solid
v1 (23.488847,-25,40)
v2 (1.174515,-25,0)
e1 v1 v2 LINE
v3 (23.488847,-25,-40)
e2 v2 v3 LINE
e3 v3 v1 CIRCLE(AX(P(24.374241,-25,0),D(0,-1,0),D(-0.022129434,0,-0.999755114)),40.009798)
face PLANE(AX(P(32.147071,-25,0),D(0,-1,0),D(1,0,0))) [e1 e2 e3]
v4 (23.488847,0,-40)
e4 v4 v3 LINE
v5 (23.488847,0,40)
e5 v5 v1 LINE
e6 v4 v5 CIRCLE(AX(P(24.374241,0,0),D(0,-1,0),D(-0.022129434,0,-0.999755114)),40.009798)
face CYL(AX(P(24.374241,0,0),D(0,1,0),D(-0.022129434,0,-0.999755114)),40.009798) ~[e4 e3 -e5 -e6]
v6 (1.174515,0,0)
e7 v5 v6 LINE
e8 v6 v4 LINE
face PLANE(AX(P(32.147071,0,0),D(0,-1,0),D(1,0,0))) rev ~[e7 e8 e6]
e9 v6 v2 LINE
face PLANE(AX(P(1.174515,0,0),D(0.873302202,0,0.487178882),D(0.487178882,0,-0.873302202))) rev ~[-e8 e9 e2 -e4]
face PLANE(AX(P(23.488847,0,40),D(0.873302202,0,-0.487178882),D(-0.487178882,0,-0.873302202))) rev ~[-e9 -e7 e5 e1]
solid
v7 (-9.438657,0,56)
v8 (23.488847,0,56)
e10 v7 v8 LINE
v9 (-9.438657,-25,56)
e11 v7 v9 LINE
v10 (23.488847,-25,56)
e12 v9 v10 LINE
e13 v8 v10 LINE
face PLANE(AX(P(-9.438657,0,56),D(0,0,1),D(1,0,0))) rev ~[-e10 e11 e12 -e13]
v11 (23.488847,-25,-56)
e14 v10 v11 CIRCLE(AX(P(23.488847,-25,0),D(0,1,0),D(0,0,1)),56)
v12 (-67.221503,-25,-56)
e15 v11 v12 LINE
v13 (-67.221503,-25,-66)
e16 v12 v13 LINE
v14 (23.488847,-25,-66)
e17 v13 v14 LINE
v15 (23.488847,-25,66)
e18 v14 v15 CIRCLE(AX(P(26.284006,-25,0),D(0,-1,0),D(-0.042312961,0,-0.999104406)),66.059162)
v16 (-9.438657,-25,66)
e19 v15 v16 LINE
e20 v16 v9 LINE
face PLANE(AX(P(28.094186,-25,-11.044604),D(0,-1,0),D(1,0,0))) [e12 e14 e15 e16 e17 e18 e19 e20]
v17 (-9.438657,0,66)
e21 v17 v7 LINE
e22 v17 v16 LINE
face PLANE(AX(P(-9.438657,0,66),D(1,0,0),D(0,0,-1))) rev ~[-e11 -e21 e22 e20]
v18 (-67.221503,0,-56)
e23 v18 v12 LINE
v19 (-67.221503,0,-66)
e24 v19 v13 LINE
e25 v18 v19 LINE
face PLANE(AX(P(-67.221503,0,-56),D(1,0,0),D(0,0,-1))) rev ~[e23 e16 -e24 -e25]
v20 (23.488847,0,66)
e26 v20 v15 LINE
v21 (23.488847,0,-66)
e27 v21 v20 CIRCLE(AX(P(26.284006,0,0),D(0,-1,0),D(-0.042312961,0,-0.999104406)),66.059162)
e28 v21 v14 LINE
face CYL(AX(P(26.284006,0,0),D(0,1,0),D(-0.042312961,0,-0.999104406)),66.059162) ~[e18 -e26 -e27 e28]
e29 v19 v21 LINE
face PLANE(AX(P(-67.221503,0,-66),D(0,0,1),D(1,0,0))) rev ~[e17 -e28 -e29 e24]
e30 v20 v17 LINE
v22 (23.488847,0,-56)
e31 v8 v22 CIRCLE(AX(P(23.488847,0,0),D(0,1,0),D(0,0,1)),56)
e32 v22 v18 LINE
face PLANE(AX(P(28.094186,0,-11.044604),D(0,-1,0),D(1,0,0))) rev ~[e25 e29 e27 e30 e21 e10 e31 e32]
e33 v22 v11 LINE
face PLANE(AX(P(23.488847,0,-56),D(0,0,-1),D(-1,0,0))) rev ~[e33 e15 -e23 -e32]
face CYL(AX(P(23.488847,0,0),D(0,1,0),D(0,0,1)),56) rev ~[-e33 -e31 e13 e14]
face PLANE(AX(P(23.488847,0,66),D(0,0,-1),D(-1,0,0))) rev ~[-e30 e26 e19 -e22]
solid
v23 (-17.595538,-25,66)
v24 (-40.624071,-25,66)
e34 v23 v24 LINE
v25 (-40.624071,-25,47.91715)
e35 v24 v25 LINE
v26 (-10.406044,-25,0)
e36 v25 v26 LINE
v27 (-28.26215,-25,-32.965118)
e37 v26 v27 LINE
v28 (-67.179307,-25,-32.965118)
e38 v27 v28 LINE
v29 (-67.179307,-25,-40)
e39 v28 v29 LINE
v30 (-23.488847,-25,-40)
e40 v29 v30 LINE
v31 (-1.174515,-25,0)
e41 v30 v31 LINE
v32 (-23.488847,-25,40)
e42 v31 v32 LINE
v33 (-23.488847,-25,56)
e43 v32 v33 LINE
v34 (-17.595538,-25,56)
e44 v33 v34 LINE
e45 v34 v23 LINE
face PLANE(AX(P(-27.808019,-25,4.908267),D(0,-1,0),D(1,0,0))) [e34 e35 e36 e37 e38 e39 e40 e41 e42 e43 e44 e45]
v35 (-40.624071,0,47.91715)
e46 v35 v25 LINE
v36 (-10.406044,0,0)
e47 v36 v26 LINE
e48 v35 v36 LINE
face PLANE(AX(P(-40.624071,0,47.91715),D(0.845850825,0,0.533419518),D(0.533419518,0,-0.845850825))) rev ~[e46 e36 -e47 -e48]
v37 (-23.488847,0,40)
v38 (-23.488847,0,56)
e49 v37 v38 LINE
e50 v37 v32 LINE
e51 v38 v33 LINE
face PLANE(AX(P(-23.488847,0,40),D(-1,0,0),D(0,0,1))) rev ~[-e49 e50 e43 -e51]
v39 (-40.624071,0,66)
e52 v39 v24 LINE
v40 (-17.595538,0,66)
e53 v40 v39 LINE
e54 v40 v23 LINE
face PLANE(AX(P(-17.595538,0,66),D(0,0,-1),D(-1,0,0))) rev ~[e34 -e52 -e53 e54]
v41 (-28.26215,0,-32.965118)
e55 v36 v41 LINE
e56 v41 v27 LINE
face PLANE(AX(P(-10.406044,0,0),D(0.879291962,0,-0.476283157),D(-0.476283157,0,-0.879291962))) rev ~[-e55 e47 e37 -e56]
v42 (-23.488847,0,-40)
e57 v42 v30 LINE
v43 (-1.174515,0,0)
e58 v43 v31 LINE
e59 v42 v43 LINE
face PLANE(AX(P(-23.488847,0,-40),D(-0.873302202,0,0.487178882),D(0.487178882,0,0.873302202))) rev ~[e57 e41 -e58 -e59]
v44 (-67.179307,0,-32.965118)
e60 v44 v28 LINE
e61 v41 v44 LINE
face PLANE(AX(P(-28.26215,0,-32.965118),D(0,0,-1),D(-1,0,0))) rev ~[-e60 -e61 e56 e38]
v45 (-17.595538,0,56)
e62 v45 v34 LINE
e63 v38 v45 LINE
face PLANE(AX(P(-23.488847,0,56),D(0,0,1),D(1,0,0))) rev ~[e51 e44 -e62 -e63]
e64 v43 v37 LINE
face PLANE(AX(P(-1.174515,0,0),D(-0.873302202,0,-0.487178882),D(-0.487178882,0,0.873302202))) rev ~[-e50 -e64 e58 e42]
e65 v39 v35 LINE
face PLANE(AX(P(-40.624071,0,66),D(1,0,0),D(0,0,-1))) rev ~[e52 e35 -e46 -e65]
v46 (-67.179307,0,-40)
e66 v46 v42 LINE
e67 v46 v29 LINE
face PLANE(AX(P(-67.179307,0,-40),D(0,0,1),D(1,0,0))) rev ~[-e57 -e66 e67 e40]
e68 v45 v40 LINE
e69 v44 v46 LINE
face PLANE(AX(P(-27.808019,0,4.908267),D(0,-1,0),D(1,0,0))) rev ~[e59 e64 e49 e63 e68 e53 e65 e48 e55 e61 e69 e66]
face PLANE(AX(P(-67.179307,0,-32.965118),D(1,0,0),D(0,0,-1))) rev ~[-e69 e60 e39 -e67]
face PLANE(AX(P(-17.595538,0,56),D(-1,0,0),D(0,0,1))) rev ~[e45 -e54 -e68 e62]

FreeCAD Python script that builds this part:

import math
import FreeCAD as App
import Part
import Sketcher
from FreeCAD import Vector


def add_polygon(sketch, points):
    """Adds a closed chain of lines whose ends are joined by coincident constraints."""
    first, n = sketch.GeometryCount, len(points)
    for a, b in zip(points, points[1:] + points[:1]):
        sketch.addGeometry(Part.LineSegment(App.Vector(*a, 0), App.Vector(*b, 0)), False)
    for i in range(n):
        sketch.addConstraint(Sketcher.Constraint("Coincident", first + i, 2, first + (i + 1) % n, 1))

doc = App.newDocument("Part")
body = doc.addObject("PartDesign::Body", "Body")
body.AllowCompound = True

sketch1 = body.newObject("Sketcher::SketchObject", "Sketch")
sketch1.AttachmentSupport = (doc.getObject("XZ_Plane"), [""])
sketch1.MapMode = "FlatFace"
sketch1.addGeometry(Part.ArcOfCircle(Part.Circle(Vector(23.488847, 0, 0), Vector(0, 0, 1), 56), math.radians(-90), math.radians(90)), False)
sketch1.addGeometry(Part.LineSegment(Vector(23.488847, -56, 0), Vector(-67.221503, -56, 0)), False)
sketch1.addGeometry(Part.LineSegment(Vector(-67.221503, -56, 0), Vector(-67.221503, -66, 0)), False)
sketch1.addGeometry(Part.LineSegment(Vector(-67.221503, -66, 0), Vector(23.488847, -66, 0)), False)
sketch1.addGeometry(Part.ArcOfCircle(Part.Circle(Vector(26.284006, 0, 0), Vector(0, 0, 1), 66.059162), math.radians(-92.425078), math.radians(92.425078)), False)
sketch1.addGeometry(Part.LineSegment(Vector(23.488847, 66, 0), Vector(-9.438657, 66, 0)), False)
sketch1.addGeometry(Part.LineSegment(Vector(-9.438657, 66, 0), Vector(-9.438657, 56, 0)), False)
sketch1.addGeometry(Part.LineSegment(Vector(-9.438657, 56, 0), Vector(23.488847, 56, 0)), False)
sketch1.addGeometry(Part.LineSegment(Vector(23.488847, 40, 0), Vector(1.174515, 0, 0)), False)
sketch1.addGeometry(Part.LineSegment(Vector(1.174515, 0, 0), Vector(23.488847, -40, 0)), False)
sketch1.addGeometry(Part.ArcOfCircle(Part.Circle(Vector(24.374241, 0, 0), Vector(0, 0, 1), 40.009798), math.radians(-91.268027), math.radians(91.268027)), False)
add_polygon(sketch1, [(-23.488847, -40), (-1.174515, 0), (-23.488847, 40), (-23.488847, 56), (-17.595538, 56), (-17.595538, 66), (-40.624071, 66), (-40.624071, 47.91715), (-10.406044, 0), (-28.26215, -32.965118), (-67.179307, -32.965118), (-67.179307, -40)])
sketch1.addConstraint(Sketcher.Constraint("Tangent", 0, 1, 1, 1))
sketch1.addConstraint(Sketcher.Constraint("Coincident", 1, 2, 2, 1))
sketch1.addConstraint(Sketcher.Constraint("Coincident", 2, 2, 3, 1))
sketch1.addConstraint(Sketcher.Constraint("Coincident", 3, 2, 4, 1))
sketch1.addConstraint(Sketcher.Constraint("Coincident", 4, 2, 5, 1))
sketch1.addConstraint(Sketcher.Constraint("Coincident", 5, 2, 6, 1))
sketch1.addConstraint(Sketcher.Constraint("Coincident", 6, 2, 7, 1))
sketch1.addConstraint(Sketcher.Constraint("Tangent", 7, 2, 0, 2))
sketch1.addConstraint(Sketcher.Constraint("Coincident", 8, 2, 9, 1))
sketch1.addConstraint(Sketcher.Constraint("Coincident", 9, 2, 10, 1))
sketch1.addConstraint(Sketcher.Constraint("Coincident", 10, 2, 8, 1))
sketch1.addConstraint(Sketcher.Constraint("Horizontal", 1))
sketch1.addConstraint(Sketcher.Constraint("Vertical", 2))
sketch1.addConstraint(Sketcher.Constraint("Horizontal", 3))
sketch1.addConstraint(Sketcher.Constraint("Horizontal", 5))
sketch1.addConstraint(Sketcher.Constraint("Vertical", 6))
sketch1.addConstraint(Sketcher.Constraint("Horizontal", 7))
sketch1.addConstraint(Sketcher.Constraint("Vertical", 13))
sketch1.addConstraint(Sketcher.Constraint("Horizontal", 14))
sketch1.addConstraint(Sketcher.Constraint("Vertical", 15))
sketch1.addConstraint(Sketcher.Constraint("Horizontal", 16))
sketch1.addConstraint(Sketcher.Constraint("Vertical", 17))
sketch1.addConstraint(Sketcher.Constraint("Horizontal", 20))
sketch1.addConstraint(Sketcher.Constraint("Vertical", 21))
sketch1.addConstraint(Sketcher.Constraint("Horizontal", 22))
sketch1.addConstraint(Sketcher.Constraint("Symmetric", 8, 2, 11, 2, -1, 1))
sketch1.addConstraint(Sketcher.Constraint("Symmetric", 9, 2, 12, 2, -1, 1))
sketch1.addConstraint(Sketcher.Constraint("Symmetric", 0, 1, 13, 2, -1, 1))
sketch1.addConstraint(Sketcher.Constraint("Symmetric", 10, 2, 22, 2, -1, 1))
sketch1.addConstraint(Sketcher.Constraint("Symmetric", 10, 2, 12, 2, -2))
sketch1.addConstraint(Sketcher.Constraint("Symmetric", 3, 2, 4, 2, -1))
sketch1.addConstraint(Sketcher.Constraint("PointOnObject", 0, 3, -1))
sketch1.addConstraint(Sketcher.Constraint("PointOnObject", 8, 2, -1))
sketch1.addConstraint(Sketcher.Constraint("PointOnObject", 18, 2, -1))
sketch1.addConstraint(Sketcher.Constraint("Horizontal", 5, 2, 15, 2))
sketch1.addConstraint(Sketcher.Constraint("Vertical", 0, 1, 3, 2))
sketch1.addConstraint(Sketcher.Constraint("Radius", 0, 56.0))
sketch1.addConstraint(Sketcher.Constraint("DistanceY", 2, 2, 2, 1, 10.0))
sketch1.addConstraint(Sketcher.Constraint("DistanceY", 13, 1, 13, 2, 16.0))
sketch1.addConstraint(Sketcher.Constraint("Radius", 4, 66.059162))
sketch1.addConstraint(Sketcher.Constraint("Radius", 10, 40.009798))
sketch1.addConstraint(Sketcher.Constraint("DistanceX", 1, 2, 1, 1, 90.71035))
sketch1.addConstraint(Sketcher.Constraint("DistanceX", 14, 1, 14, 2, 5.893309))
sketch1.addConstraint(Sketcher.Constraint("DistanceX", 22, 1, 22, 2, 43.69046))
sketch1.addConstraint(Sketcher.Constraint("DistanceY", 17, 2, 17, 1, 18.08285))
sketch1.addConstraint(Sketcher.Constraint("DistanceX", 5, 2, 10, 3, 33.812898))
sketch1.addConstraint(Sketcher.Constraint("Distance", 8, 45.803159))
sketch1.addConstraint(Sketcher.Constraint("DistanceX", 16, 2, 16, 1, 23.028533))
sketch1.addConstraint(Sketcher.Constraint("DistanceX", 20, 2, 20, 1, 38.917157))
sketch1.addConstraint(Sketcher.Constraint("DistanceY", 21, 2, 21, 1, 7.034882))
sketch1.addConstraint(Sketcher.Constraint("DistanceX", -1, 1, 10, 3, 24.374241))
sketch1.addConstraint(Sketcher.Constraint("DistanceX", 18, 2, 11, 2, 9.231529))
pad1 = body.newObject("PartDesign::Pad", "Pad")
pad1.Profile = sketch1
pad1.Length = 25

doc.recompute()
